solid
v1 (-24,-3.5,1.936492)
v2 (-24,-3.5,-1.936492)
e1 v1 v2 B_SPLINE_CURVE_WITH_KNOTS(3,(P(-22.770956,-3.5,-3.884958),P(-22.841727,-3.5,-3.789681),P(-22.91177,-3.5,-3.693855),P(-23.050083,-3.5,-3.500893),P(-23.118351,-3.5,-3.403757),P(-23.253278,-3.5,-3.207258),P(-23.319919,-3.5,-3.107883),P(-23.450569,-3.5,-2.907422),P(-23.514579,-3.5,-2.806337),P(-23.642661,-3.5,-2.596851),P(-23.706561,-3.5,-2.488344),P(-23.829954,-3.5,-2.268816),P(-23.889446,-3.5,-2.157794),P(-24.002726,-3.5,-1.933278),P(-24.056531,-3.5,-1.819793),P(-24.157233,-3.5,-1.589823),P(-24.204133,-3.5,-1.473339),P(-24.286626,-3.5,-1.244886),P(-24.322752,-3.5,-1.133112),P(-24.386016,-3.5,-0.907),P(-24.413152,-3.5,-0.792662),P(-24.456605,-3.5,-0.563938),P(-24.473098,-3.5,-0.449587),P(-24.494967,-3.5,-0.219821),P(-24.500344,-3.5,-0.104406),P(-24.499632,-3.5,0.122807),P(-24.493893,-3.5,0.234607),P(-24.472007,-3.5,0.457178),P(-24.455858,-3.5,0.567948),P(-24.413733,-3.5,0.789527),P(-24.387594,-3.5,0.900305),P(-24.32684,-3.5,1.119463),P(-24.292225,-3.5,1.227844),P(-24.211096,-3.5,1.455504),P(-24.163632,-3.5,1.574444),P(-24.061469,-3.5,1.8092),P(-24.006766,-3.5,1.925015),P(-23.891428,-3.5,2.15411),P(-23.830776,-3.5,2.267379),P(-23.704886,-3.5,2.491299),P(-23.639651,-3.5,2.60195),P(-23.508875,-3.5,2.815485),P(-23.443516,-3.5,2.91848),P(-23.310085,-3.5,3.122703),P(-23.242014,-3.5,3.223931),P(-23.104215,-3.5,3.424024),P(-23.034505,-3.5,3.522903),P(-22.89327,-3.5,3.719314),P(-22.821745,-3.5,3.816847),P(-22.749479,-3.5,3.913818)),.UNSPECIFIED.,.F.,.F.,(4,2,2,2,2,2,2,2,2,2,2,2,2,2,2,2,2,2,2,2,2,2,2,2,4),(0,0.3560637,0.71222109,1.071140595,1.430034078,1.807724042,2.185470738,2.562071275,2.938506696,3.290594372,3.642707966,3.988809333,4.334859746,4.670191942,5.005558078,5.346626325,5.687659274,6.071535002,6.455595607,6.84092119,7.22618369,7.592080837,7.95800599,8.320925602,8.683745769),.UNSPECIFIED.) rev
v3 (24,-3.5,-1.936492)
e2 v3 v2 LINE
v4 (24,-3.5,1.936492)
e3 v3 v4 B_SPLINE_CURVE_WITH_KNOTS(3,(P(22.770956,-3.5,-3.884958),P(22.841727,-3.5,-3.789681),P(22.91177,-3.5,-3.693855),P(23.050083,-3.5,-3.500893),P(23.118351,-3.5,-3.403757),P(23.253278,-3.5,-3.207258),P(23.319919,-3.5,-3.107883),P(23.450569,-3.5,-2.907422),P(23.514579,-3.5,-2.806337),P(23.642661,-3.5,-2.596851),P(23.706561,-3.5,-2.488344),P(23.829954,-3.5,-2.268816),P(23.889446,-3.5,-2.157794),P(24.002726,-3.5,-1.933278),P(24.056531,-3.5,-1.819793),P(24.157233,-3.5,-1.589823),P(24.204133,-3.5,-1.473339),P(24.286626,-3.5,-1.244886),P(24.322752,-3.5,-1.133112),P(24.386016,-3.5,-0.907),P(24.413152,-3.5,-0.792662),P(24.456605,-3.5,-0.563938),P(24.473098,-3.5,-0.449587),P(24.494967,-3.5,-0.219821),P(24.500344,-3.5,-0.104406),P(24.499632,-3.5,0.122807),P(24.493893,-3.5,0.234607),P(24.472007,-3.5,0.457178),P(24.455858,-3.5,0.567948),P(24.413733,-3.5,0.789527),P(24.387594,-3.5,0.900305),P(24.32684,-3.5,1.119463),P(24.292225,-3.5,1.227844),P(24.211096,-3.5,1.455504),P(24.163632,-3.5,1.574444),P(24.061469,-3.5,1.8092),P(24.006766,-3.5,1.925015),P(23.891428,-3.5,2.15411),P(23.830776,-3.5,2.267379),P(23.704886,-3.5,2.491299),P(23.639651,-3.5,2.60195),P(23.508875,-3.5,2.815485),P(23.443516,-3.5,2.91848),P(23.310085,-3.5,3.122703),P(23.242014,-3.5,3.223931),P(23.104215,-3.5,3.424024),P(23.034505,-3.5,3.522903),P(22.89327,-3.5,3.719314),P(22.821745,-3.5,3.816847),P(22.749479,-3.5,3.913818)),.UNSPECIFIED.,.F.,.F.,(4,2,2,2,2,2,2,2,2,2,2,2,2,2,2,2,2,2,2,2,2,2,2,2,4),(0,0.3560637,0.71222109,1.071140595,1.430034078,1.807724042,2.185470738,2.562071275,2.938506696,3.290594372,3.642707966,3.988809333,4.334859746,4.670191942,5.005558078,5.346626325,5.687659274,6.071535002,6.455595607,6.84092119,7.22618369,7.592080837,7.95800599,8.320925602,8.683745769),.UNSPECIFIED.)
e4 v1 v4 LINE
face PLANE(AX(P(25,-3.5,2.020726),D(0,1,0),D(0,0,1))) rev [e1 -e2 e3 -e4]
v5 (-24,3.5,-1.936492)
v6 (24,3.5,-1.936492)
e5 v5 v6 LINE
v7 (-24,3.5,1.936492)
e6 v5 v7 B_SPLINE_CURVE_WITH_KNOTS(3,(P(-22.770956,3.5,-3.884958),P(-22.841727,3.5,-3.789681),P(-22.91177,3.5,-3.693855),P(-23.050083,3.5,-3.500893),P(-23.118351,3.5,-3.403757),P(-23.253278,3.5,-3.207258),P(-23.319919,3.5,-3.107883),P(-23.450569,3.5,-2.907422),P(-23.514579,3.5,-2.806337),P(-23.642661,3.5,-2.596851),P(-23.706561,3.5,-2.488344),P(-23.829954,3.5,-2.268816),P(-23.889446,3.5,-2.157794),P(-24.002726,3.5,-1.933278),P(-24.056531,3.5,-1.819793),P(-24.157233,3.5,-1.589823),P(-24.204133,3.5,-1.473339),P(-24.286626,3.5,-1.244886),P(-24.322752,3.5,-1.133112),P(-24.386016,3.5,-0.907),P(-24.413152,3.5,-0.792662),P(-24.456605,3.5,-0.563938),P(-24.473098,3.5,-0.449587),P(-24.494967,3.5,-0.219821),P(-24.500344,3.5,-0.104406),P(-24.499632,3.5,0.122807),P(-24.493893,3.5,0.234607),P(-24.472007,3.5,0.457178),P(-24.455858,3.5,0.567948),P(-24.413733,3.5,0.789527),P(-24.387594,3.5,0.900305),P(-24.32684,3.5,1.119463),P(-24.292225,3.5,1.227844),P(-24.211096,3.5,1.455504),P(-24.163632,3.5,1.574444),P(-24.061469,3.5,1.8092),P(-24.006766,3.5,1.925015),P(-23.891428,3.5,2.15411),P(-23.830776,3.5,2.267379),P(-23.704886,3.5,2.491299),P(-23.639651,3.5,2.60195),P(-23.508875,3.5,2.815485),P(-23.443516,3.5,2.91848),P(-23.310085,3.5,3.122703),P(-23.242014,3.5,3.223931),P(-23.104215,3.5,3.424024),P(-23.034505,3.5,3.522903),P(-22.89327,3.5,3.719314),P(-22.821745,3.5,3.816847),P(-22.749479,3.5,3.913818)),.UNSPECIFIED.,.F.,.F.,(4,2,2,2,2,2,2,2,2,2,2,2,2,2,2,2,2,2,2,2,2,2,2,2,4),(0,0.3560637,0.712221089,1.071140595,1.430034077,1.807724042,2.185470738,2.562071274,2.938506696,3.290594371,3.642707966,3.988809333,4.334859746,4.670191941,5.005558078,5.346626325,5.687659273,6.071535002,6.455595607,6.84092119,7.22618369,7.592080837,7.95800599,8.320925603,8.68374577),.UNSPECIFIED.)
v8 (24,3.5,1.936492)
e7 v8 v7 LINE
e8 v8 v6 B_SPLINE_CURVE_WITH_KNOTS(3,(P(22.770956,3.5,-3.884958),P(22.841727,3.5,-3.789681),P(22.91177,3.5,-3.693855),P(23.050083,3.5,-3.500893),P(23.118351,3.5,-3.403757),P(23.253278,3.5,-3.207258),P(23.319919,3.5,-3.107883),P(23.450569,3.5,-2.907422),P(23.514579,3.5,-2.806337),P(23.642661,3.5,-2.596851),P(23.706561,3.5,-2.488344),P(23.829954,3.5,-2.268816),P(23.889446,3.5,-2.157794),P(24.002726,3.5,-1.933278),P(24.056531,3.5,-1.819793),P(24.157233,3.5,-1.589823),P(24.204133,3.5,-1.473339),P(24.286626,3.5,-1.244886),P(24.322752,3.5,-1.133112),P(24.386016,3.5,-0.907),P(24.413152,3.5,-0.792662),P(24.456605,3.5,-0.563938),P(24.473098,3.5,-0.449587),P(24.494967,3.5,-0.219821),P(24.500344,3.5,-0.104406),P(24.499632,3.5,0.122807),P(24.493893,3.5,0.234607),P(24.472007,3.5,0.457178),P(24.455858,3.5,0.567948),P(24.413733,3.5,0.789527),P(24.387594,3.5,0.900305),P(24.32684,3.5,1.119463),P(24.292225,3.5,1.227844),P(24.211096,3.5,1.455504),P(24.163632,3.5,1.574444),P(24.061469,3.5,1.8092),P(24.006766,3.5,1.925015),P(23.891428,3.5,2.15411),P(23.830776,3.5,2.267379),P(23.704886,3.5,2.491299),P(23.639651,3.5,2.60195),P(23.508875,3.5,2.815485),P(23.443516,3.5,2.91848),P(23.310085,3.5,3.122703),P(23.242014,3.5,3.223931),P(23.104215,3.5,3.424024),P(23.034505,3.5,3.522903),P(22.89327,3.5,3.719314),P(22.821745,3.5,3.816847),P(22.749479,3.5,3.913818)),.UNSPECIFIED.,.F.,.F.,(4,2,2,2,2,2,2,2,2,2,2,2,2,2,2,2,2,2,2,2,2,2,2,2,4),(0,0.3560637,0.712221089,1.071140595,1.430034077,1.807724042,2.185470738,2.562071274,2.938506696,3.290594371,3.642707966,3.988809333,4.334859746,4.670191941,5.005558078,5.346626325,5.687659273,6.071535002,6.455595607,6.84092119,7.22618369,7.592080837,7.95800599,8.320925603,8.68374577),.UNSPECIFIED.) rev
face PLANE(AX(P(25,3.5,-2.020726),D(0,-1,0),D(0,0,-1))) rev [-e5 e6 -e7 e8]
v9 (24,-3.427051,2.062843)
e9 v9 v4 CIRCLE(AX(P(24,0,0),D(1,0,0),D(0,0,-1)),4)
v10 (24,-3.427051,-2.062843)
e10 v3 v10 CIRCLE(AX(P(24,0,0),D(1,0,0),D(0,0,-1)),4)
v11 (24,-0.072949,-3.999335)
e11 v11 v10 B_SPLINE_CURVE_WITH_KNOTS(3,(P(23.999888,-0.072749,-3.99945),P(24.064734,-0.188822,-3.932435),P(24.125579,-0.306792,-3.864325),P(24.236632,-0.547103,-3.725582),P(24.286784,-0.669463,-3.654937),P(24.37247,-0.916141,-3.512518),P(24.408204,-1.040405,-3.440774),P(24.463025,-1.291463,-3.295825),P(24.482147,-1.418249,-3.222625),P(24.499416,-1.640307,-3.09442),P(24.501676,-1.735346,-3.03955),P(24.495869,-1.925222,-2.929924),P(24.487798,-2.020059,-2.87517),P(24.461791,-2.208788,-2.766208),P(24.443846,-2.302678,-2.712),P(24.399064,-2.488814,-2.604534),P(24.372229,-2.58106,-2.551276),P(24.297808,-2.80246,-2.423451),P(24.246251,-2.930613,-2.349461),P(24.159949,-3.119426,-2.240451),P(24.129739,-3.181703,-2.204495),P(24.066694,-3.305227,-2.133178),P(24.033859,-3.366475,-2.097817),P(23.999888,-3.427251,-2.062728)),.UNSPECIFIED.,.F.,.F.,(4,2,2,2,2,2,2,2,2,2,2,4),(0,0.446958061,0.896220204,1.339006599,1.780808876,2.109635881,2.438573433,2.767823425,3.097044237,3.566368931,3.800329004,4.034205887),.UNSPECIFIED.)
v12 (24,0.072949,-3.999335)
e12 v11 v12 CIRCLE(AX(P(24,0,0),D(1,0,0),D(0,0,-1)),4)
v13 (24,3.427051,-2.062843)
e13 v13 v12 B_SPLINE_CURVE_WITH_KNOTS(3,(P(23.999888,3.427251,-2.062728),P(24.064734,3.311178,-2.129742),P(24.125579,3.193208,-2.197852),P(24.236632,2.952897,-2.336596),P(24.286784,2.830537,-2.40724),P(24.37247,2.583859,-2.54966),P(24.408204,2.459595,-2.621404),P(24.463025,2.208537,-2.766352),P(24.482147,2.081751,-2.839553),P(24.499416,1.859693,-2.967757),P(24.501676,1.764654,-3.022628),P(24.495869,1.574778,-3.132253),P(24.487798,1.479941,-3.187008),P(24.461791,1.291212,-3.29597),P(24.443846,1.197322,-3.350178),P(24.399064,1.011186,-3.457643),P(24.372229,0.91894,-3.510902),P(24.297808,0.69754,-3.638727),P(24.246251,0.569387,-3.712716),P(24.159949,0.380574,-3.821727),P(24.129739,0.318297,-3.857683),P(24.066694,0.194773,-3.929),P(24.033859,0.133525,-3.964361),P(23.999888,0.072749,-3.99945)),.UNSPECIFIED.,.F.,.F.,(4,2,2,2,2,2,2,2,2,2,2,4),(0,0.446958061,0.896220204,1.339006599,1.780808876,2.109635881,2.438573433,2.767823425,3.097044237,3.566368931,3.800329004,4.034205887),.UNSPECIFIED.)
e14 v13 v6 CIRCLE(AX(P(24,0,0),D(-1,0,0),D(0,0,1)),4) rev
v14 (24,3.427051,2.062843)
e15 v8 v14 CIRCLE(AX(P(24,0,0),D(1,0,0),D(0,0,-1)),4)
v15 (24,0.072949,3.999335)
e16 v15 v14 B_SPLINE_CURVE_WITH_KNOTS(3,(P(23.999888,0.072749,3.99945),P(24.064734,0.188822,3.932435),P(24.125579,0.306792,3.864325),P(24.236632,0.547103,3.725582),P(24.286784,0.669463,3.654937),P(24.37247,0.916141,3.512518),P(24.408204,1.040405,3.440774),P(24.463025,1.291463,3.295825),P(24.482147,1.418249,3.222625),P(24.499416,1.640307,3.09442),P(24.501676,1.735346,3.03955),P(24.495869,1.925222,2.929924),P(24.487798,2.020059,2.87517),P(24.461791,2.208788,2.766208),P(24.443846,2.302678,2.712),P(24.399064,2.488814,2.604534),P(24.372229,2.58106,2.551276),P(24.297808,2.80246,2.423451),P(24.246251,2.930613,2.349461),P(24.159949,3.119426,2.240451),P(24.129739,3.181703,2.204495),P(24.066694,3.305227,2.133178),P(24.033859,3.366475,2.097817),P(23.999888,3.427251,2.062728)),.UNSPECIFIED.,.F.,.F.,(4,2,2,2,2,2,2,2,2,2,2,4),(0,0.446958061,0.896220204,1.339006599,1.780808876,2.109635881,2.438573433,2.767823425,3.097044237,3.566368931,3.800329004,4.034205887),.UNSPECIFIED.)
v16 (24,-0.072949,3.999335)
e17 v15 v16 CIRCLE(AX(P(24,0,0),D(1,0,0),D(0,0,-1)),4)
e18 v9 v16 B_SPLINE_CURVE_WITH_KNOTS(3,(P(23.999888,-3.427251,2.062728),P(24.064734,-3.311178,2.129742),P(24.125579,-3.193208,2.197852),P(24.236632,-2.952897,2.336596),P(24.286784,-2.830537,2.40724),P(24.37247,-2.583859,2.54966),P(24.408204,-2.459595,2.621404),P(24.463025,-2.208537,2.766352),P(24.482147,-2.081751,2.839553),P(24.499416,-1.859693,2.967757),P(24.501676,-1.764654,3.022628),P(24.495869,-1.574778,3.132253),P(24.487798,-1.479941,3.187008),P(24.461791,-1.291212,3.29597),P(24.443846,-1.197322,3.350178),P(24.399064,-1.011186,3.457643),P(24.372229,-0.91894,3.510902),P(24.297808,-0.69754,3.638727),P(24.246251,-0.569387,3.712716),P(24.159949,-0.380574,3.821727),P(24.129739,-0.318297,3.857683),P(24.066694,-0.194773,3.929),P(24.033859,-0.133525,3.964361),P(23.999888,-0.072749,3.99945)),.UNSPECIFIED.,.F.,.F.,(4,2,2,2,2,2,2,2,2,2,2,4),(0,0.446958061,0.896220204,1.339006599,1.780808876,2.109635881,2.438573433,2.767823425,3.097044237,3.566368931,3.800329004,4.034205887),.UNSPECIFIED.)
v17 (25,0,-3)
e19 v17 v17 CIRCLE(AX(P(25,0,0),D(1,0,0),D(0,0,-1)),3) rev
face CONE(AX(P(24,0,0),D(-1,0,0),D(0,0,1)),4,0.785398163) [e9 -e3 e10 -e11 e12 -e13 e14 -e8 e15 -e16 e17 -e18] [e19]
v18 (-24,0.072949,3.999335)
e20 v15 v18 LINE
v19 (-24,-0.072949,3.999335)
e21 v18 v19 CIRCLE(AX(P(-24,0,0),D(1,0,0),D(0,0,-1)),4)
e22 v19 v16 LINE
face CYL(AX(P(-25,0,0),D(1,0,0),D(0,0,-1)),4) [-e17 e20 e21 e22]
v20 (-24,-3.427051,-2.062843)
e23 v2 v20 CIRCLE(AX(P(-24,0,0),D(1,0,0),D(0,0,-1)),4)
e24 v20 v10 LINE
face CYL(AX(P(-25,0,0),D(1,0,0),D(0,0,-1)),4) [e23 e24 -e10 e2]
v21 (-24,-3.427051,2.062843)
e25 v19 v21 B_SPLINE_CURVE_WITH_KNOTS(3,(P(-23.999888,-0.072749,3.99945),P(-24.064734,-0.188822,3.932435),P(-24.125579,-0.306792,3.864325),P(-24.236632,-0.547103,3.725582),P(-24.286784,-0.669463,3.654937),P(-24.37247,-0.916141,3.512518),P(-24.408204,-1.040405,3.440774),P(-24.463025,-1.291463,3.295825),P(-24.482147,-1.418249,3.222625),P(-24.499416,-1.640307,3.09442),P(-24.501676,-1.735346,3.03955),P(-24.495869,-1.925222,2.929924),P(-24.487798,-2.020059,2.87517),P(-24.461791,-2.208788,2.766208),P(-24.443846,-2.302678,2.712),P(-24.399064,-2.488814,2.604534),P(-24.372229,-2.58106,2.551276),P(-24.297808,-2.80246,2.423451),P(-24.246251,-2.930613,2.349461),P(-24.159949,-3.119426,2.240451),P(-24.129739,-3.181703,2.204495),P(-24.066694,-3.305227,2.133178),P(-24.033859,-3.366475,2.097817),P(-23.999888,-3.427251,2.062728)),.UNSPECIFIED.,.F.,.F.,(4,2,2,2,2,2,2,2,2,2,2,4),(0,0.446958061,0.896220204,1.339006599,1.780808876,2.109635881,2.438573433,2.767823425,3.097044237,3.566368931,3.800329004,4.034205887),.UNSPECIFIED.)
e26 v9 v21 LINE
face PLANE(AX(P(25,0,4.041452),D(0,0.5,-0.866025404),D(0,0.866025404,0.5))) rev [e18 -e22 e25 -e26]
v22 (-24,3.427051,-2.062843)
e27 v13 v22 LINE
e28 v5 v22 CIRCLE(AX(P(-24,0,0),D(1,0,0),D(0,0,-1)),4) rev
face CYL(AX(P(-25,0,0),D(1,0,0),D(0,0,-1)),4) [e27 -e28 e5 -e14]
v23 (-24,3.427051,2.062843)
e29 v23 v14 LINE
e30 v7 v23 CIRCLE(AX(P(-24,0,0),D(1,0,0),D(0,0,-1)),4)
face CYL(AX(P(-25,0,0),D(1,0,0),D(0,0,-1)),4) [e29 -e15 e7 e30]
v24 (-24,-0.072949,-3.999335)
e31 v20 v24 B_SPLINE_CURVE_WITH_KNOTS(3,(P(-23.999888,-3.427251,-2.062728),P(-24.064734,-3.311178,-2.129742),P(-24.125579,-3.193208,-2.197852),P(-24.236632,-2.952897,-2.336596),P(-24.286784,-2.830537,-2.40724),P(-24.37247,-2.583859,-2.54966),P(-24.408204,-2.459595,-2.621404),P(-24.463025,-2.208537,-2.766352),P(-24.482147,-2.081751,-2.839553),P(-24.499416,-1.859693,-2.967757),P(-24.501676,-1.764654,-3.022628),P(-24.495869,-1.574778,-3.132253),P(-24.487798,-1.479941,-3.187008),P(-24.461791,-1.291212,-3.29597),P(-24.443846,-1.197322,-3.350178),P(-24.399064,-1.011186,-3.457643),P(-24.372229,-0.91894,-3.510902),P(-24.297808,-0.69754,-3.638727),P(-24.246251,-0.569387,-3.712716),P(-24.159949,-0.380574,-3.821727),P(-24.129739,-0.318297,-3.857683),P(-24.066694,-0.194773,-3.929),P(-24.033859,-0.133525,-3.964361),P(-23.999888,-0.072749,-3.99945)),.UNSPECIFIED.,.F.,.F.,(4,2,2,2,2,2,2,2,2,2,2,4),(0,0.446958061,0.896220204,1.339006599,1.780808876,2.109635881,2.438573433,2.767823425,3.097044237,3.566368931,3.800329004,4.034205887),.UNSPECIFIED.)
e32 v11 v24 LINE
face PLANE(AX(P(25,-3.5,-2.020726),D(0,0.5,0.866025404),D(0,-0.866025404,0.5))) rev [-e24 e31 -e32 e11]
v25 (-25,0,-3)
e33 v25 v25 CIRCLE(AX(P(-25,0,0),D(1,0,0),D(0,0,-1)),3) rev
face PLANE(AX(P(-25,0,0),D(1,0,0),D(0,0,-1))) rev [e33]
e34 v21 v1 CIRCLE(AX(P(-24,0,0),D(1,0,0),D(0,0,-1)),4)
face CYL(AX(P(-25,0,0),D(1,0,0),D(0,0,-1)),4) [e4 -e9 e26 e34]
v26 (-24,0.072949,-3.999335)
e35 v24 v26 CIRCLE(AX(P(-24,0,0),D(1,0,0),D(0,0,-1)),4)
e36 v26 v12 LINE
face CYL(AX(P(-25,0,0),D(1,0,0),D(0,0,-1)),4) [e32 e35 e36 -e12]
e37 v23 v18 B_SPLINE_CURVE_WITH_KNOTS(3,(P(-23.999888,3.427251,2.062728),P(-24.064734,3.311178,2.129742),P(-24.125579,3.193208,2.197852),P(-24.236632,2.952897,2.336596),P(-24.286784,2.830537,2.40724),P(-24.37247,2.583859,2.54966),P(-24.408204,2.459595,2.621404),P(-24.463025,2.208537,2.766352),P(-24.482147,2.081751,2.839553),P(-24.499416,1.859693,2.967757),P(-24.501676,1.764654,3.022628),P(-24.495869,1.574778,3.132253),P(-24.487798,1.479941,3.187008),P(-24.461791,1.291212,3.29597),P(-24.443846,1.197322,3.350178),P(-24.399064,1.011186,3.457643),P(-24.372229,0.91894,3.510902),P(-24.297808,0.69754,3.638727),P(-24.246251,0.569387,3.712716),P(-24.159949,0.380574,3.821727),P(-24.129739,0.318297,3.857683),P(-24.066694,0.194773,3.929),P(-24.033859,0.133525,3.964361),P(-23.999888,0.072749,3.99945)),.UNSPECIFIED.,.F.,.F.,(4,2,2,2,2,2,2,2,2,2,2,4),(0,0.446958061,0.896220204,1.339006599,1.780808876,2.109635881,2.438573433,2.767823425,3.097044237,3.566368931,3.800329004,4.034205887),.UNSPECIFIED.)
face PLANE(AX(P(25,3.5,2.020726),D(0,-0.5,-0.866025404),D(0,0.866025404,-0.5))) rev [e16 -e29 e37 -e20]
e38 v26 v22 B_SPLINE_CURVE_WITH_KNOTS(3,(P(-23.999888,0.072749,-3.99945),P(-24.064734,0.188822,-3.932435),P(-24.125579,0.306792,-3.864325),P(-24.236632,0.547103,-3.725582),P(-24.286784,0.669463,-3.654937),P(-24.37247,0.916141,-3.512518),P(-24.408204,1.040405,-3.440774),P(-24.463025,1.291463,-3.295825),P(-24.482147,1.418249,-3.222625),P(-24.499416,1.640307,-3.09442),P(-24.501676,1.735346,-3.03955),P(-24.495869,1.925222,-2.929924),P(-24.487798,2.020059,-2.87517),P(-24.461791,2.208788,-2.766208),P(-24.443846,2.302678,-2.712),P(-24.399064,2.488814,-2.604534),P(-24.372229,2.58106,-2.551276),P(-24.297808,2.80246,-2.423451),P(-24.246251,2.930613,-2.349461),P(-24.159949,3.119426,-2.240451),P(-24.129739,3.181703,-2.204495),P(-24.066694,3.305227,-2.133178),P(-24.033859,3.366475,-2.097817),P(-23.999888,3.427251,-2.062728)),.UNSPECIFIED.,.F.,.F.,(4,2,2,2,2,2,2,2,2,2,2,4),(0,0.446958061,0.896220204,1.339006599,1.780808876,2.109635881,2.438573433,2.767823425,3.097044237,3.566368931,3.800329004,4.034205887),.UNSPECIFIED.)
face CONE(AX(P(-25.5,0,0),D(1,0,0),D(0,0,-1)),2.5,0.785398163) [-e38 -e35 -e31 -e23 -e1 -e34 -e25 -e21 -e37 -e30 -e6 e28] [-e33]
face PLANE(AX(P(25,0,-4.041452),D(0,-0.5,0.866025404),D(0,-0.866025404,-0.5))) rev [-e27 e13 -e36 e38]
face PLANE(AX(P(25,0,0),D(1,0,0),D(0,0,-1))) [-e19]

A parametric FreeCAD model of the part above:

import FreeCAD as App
import Part
import Sketcher
Q = App.Units.Quantity


def add_polygon(sketch, points):
    """Adds a closed chain of lines whose ends are joined by coincident constraints."""
    first, n = sketch.GeometryCount, len(points)
    for a, b in zip(points, points[1:] + points[:1]):
        sketch.addGeometry(Part.LineSegment(App.Vector(*a, 0), App.Vector(*b, 0)), False)
    for i in range(n):
        sketch.addConstraint(Sketcher.Constraint("Coincident", first + i, 2, first + (i + 1) % n, 1))

doc = App.newDocument("Part")
params = doc.addObject("Spreadsheet::Sheet", "Params")
for row, (alias, value) in enumerate([
    ("pad1_length", "50 mm"),
    ("sketch2_diameter", "10 mm"),
    ("sketch2_diameter2", "8 mm"),
    ("sketch3_width", "1.5 mm"),
    ("groove_angle", "360 deg"),
], start=1):
    params.set(f"A{row}", alias)
    params.set(f"B{row}", "=" + value)
    params.setAlias(f"B{row}", alias)

body = doc.addObject("PartDesign::Body", "Body")

sketch1 = body.newObject("Sketcher::SketchObject", "Sketch")
sketch1.AttachmentSupport = (doc.getObject("YZ_Plane"), [""])
sketch1.MapMode = "FlatFace"
add_polygon(sketch1, [(0, -4.041452), (3.5, -2.020726), (3.5, 2.020726), (0, 4.041452), (-3.5, 2.020726), (-3.5, -2.020726)])
sketch1.addConstraint([
    Sketcher.Constraint("Vertical", 1),
    Sketcher.Constraint("Vertical", 4),
    Sketcher.Constraint("Symmetric", 0, 2, 3, 2, -1, 1),
    Sketcher.Constraint("Symmetric", 2, 2, 5, 2, -1, 1),
    Sketcher.Constraint("PointOnObject", 2, 2, -2),
    Sketcher.Constraint("Parallel", 2, 5),
    Sketcher.Constraint("Horizontal", 1, 2, 3, 2),
    Sketcher.Constraint("Angle", 0, Q("30 deg")),
    Sketcher.Constraint("DistanceX", 3, 2, 1, 2, 7.0),
    Sketcher.Constraint("DistanceY", 1, 1, 1, 2, 4.041452),
])
pad1 = body.newObject("PartDesign::Pad", "Pad")
pad1.Profile = sketch1
pad1.setExpression("Length", "Params.pad1_length")
pad1.Midplane = True

sketch2 = body.newObject("Sketcher::SketchObject", "Sketch001")
sketch2.AttachmentSupport = (doc.getObject("YZ_Plane"), [""])
sketch2.MapMode = "FlatFace"
sketch2.addGeometry([
    Part.Circle(App.Vector(0, 0, 0), App.Vector(0, 0, 1), 5),
    Part.Circle(App.Vector(0, 0, 0), App.Vector(0, 0, 1), 4),
], False)
sketch2.addConstraint([
    Sketcher.Constraint("Coincident", 0, 3, -1, 1),
    Sketcher.Constraint("Coincident", 1, 3, -1, 1),
    Sketcher.Constraint("Diameter", 0, 10.0),
    Sketcher.Constraint("Diameter", 1, 8.0),
])
sketch2.setExpression("Constraints[2]", "Params.sketch2_diameter")
sketch2.setExpression("Constraints[3]", "Params.sketch2_diameter2")
pocket1 = body.newObject("PartDesign::Pocket", "Pocket")
pocket1.Profile = sketch2
pocket1.Type = "ThroughAll"
pocket1.Midplane = True

sketch3 = body.newObject("Sketcher::SketchObject", "Sketch002")
sketch3.AttachmentSupport = (doc.getObject("XY_Plane"), [""])
sketch3.MapMode = "FlatFace"
add_polygon(sketch3, [(-24, 4), (-25.5, 4), (-25.5, 2.5)])
add_polygon(sketch3, [(24, 4), (25.5, 2.5), (25.5, 4)])
sketch3.addConstraint([
    Sketcher.Constraint("Horizontal", 0),
    Sketcher.Constraint("Vertical", 1),
    Sketcher.Constraint("Vertical", 4),
    Sketcher.Constraint("Horizontal", 5),
    Sketcher.Constraint("Symmetric", 1, 2, 3, 2, -2),
    Sketcher.Constraint("Symmetric", 2, 2, 5, 2, -2),
    Sketcher.Constraint("Perpendicular", 2, 3),
    Sketcher.Constraint("DistanceX", 0, 2, 0, 1, 1.5),
    Sketcher.Constraint("DistanceY", -1, 1, 0, 2, 4.0),
    Sketcher.Constraint("DistanceX", 2, 2, -1, 1, 24.0),
])
sketch3.setExpression("Constraints[13]", "Params.sketch3_width")
groove = body.newObject("PartDesign::Groove", "Groove")
groove.Profile = sketch3
groove.ReferenceAxis = (sketch3, ["H_Axis"])
groove.setExpression("Angle", "Params.groove_angle")

doc.recompute()
